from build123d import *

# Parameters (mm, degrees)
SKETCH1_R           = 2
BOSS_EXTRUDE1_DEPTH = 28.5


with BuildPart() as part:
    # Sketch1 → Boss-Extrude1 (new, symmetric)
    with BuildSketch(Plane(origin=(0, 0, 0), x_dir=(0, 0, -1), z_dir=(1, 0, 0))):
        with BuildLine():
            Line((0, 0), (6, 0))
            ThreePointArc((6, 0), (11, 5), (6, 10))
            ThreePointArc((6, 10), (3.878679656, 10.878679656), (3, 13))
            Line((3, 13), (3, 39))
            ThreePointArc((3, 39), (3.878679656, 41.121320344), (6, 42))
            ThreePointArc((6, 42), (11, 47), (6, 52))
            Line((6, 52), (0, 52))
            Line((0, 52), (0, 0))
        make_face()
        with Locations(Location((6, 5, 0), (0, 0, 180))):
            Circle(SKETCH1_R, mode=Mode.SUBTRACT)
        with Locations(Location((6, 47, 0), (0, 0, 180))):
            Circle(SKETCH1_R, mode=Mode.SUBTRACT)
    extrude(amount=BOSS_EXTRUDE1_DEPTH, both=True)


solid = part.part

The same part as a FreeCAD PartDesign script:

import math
import FreeCAD as App
import Part
import Sketcher

V = App.Vector

doc = App.newDocument("Part")
body = doc.addObject("PartDesign::Body", "Body")

# Sketch on YZ plane
sketch1 = body.newObject("Sketcher::SketchObject", "Sketch")
sketch1.AttachmentSupport = (doc.getObject("YZ_Plane"), [""])
sketch1.MapMode = "FlatFace"
sketch1.addGeometry([
    Part.LineSegment(V(0, 0, 0), V(0, -6, 0)),  # 0
    Part.ArcOfCircle(Part.Circle(V(5, -6, 0), V(0, 0, 1), 5), math.radians(180), math.radians(360)),  # 1
    Part.ArcOfCircle(Part.Circle(V(13, -6, 0), V(0, 0, 1), 3), math.radians(90), math.radians(180)),  # 2
    Part.LineSegment(V(13, -3, 0), V(39, -3, 0)),  # 3
    Part.ArcOfCircle(Part.Circle(V(39, -6, 0), V(0, 0, 1), 3), math.radians(0), math.radians(90)),  # 4
    Part.ArcOfCircle(Part.Circle(V(47, -6, 0), V(0, 0, 1), 5), math.radians(180), math.radians(360)),  # 5
    Part.LineSegment(V(52, -6, 0), V(52, 0, 0)),  # 6
    Part.LineSegment(V(52, 0, 0), V(0, 0, 0)),  # 7
    Part.Circle(V(5, -6, 0), V(0, 0, 1), 2),  # 8
    Part.Circle(V(47, -6, 0), V(0, 0, 1), 2),  # 9
], False)
sketch1.addConstraint([
    Sketcher.Constraint("Tangent", 0, 2, 1, 1),
    Sketcher.Constraint("Tangent", 1, 2, 2, 2),
    Sketcher.Constraint("Tangent", 2, 1, 3, 1),
    Sketcher.Constraint("Tangent", 3, 2, 4, 2),
    Sketcher.Constraint("Tangent", 4, 1, 5, 1),
    Sketcher.Constraint("Tangent", 5, 2, 6, 1),
    Sketcher.Constraint("Coincident", 6, 2, 7, 1),
    Sketcher.Constraint("Coincident", 7, 2, 0, 1),
    Sketcher.Constraint("Vertical", 0),
    Sketcher.Constraint("Horizontal", 3),
    Sketcher.Constraint("Vertical", 6),
    Sketcher.Constraint("Horizontal", 7),
    Sketcher.Constraint("Coincident", 7, 2, -1, 1),
    Sketcher.Constraint("Coincident", 8, 3, 1, 3),
    Sketcher.Constraint("Coincident", 9, 3, 5, 3),
    Sketcher.Constraint("Equal", 2, 4),
    Sketcher.Constraint("Equal", 1, 5),
    Sketcher.Constraint("Equal", 8, 9),
    Sketcher.Constraint("Horizontal", 1, 3, 2, 3),
    Sketcher.Constraint("Horizontal", 4, 3, 5, 3),
    Sketcher.Constraint("Diameter", 8, 4.0),
    Sketcher.Constraint("Radius", 1, 5.0),
    Sketcher.Constraint("Radius", 2, 3.0),
    Sketcher.Constraint("DistanceX", 3, 1, 3, 2, 26.0),
    Sketcher.Constraint("DistanceY", 0, 2, 0, 1, 6.0),
])
pad1 = body.newObject("PartDesign::Pad", "Pad")
pad1.Profile = sketch1
pad1.Length = 57
pad1.Midplane = True

doc.recompute()
